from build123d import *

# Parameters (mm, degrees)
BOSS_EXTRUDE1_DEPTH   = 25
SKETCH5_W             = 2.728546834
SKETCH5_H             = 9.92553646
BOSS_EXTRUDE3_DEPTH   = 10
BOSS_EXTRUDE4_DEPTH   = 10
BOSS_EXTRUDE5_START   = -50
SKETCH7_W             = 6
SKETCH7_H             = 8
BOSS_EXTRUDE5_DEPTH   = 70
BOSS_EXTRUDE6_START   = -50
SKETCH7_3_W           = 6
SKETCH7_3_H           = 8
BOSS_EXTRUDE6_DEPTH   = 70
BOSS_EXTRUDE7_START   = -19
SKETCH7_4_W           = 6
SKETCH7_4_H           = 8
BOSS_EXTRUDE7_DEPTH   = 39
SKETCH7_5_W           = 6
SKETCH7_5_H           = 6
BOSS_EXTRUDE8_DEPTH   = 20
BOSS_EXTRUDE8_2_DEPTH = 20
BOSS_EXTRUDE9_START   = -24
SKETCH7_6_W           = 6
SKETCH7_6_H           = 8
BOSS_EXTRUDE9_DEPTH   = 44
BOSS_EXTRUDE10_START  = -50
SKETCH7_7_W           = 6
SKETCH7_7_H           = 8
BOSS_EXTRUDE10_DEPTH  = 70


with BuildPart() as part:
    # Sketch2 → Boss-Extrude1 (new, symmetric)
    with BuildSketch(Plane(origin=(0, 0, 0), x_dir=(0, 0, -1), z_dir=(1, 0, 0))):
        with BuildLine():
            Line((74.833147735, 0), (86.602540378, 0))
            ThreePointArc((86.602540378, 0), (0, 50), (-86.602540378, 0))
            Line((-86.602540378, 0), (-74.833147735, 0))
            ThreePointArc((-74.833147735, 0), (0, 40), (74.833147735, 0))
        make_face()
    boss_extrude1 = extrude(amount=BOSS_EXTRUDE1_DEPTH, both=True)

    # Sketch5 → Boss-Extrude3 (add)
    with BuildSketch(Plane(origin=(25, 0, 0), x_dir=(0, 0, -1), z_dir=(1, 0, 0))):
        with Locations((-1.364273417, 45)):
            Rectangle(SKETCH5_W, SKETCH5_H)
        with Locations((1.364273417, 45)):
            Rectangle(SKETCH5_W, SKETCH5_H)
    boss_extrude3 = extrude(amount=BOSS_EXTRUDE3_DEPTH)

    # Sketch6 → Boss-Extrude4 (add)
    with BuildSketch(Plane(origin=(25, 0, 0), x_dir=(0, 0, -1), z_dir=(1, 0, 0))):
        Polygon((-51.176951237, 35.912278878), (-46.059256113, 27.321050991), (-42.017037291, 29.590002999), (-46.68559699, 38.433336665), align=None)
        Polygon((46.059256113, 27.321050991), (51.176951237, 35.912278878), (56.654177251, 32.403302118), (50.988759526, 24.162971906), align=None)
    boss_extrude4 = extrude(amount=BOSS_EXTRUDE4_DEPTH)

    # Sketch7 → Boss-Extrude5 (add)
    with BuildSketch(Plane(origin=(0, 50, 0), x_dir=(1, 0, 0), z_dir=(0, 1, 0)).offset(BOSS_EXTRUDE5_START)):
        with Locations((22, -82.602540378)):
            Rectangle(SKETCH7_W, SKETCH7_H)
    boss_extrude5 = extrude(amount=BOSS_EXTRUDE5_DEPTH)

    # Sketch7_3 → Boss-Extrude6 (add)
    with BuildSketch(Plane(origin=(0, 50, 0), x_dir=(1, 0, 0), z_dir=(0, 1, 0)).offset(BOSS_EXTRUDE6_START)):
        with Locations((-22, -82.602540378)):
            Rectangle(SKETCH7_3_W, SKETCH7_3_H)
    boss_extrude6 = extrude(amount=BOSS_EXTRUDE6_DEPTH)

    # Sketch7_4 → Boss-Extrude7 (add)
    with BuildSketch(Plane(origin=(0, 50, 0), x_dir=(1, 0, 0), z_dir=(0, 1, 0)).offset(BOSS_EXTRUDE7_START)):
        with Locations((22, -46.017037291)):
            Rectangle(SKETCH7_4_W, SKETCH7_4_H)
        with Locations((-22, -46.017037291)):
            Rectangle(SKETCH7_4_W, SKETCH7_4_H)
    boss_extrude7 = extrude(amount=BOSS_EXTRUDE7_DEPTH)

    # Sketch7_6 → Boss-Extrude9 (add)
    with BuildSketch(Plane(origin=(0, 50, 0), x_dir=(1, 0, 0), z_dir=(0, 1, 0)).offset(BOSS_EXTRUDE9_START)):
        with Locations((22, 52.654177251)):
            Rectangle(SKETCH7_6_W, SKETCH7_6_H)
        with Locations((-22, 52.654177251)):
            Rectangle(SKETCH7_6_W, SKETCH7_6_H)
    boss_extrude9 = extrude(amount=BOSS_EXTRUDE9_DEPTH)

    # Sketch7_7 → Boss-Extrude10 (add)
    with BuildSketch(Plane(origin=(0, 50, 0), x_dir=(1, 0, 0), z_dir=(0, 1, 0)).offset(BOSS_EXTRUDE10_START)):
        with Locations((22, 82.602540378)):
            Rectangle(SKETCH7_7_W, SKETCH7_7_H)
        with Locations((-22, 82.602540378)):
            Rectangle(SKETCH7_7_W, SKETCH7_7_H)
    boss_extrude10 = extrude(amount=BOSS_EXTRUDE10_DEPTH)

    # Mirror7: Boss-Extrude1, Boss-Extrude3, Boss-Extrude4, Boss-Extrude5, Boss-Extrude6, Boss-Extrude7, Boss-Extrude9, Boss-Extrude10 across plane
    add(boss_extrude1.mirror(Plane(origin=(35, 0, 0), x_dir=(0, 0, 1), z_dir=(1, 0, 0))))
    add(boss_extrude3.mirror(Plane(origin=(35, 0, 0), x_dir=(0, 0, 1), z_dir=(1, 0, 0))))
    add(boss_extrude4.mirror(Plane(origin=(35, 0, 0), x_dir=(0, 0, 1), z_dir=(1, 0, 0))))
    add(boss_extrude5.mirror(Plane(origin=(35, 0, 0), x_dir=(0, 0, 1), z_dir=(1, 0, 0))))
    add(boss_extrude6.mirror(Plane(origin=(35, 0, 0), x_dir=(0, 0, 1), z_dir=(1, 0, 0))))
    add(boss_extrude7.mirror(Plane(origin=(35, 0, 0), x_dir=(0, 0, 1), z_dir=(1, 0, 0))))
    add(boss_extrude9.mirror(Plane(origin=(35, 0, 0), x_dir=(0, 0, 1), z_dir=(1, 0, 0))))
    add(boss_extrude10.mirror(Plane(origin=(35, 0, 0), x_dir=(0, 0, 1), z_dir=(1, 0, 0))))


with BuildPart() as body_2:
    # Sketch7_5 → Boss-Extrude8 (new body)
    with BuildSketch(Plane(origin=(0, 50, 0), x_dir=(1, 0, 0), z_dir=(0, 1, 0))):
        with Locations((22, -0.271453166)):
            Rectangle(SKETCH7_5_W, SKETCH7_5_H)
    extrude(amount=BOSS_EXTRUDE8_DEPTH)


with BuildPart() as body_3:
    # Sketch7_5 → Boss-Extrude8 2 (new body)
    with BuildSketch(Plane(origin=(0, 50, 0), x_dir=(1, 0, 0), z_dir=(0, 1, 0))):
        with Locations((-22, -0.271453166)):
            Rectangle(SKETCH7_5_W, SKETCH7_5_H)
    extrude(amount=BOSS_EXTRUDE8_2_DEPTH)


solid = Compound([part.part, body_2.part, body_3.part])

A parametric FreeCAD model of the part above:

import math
import FreeCAD as App
import Part
import Sketcher
Q = App.Units.Quantity


def add_polygon(sketch, points):
    """Adds a closed chain of lines whose ends are joined by coincident constraints."""
    first, n = sketch.GeometryCount, len(points)
    for a, b in zip(points, points[1:] + points[:1]):
        sketch.addGeometry(Part.LineSegment(App.Vector(*a, 0), App.Vector(*b, 0)), False)
    for i in range(n):
        sketch.addConstraint(Sketcher.Constraint("Coincident", first + i, 2, first + (i + 1) % n, 1))

doc = App.newDocument("Part")
body = doc.addObject("PartDesign::Body", "Body")

sketch1 = body.newObject("Sketcher::SketchObject", "Sketch")
sketch1.AttachmentSupport = (doc.getObject("YZ_Plane"), [""])
sketch1.MapMode = "FlatFace"
sketch1.addGeometry([
    Part.LineSegment(App.Vector(0, -75, 0), App.Vector(0, -87, 0)),
    Part.ArcOfCircle(Part.Circle(App.Vector(-50, 0, 0), App.Vector(0, 0, 1), 100), math.radians(-60), math.radians(60)),
    Part.LineSegment(App.Vector(0, 87, 0), App.Vector(0, 75, 0)),
    Part.ArcOfCircle(Part.Circle(App.Vector(-50, 0, 0), App.Vector(0, 0, 1), 90), math.radians(-56), math.radians(56)),
], False)
sketch1.addConstraint([
    Sketcher.Constraint("Coincident", 0, 2, 1, 1),
    Sketcher.Constraint("Coincident", 1, 2, 2, 1),
    Sketcher.Constraint("Coincident", 2, 2, 3, 2),
    Sketcher.Constraint("Coincident", 3, 1, 0, 1),
    Sketcher.Constraint("Vertical", 0),
    Sketcher.Constraint("Vertical", 2),
    Sketcher.Constraint("Coincident", 3, 3, 1, 3),
    Sketcher.Constraint("Symmetric", 0, 2, 1, 2, -1, 1),
    Sketcher.Constraint("PointOnObject", 1, 3, -1),
    Sketcher.Constraint("Radius", 1, Q("100 mm")),
    Sketcher.Constraint("Radius", 3, Q("90 mm")),
    Sketcher.Constraint("DistanceX", 1, 3, -1, 1, Q("50 mm")),
])
pad1 = body.newObject("PartDesign::Pad", "Pad")
pad1.Profile = sketch1
pad1.Length = 50
pad1.Midplane = True

sketch2 = body.newObject("Sketcher::SketchObject", "Sketch001")
sketch2.AttachmentSupport = (doc.getObject("YZ_Plane"), [""])
sketch2.MapMode = "FlatFace"
sketch2.AttachmentOffset = App.Placement(App.Vector(0, 0, 25), App.Rotation())
add_polygon(sketch2, [(50, 3), (40, 3), (40, -3), (50, -3)])
sketch2.addConstraint([
    Sketcher.Constraint("Horizontal", 0),
    Sketcher.Constraint("Vertical", 1),
    Sketcher.Constraint("Horizontal", 2),
    Sketcher.Constraint("Vertical", 3),
    Sketcher.Constraint("DistanceX", 0, 2, 0, 1, Q("9.925536 mm")),
    Sketcher.Constraint("DistanceY", 1, 2, 1, 1, Q("5.457094 mm")),
    Sketcher.Constraint("DistanceX", -1, 1, 0, 2, Q("40.037232 mm")),
    Sketcher.Constraint("DistanceY", -1, 1, 0, 2, Q("2.728547 mm")),
])
pad2 = body.newObject("PartDesign::Pad", "Pad001")
pad2.Profile = sketch2
pad2.Length = 10

sketch3 = body.newObject("Sketcher::SketchObject", "Sketch002")
sketch3.AttachmentSupport = (doc.getObject("YZ_Plane"), [""])
sketch3.MapMode = "FlatFace"
sketch3.AttachmentOffset = App.Placement(App.Vector(0, 0, 25), App.Rotation())
add_polygon(sketch3, [(35.9, 51.2), (27.3, 46.1), (29.6, 42), (38.4, 46.7)])
add_polygon(sketch3, [(35.9, -51.2), (27.3, -46.1), (24.2, -51), (32.4, -56.7)])
sketch3.addConstraint([
    Sketcher.Constraint("Symmetric", 0, 2, 4, 2, -1),
    Sketcher.Constraint("Symmetric", 3, 2, 7, 2, -1),
    Sketcher.Constraint("Parallel", 1, 3),
    Sketcher.Constraint("Parallel", 5, 7),
    Sketcher.Constraint("Equal", 0, 2),
    Sketcher.Constraint("Equal", 4, 6),
    Sketcher.Constraint("Distance", 0, Q("10 mm")),
    Sketcher.Constraint("DistanceX", 1, 2, 6, 2, Q("2.813299 mm")),
    Sketcher.Constraint("Distance", 1, Q("4.63548 mm")),
    Sketcher.Constraint("Distance", 7, Q("6.504838 mm")),
    Sketcher.Constraint("DistanceX", -1, 1, 0, 2, Q("27.321051 mm")),
    Sketcher.Constraint("DistanceX", -1, 1, 3, 2, Q("35.912279 mm")),
    Sketcher.Constraint("DistanceY", -1, 1, 3, 2, Q("51.176951 mm")),
    Sketcher.Constraint("DistanceX", -1, 1, 5, 2, Q("24.162972 mm")),
])
pad3 = body.newObject("PartDesign::Pad", "Pad002")
pad3.Profile = sketch3
pad3.Length = 10

sketch4 = body.newObject("Sketcher::SketchObject", "Sketch003")
sketch4.AttachmentSupport = (doc.getObject("XZ_Plane"), [""])
sketch4.MapMode = "FlatFace"
add_polygon(sketch4, [(19, 79), (19, 87), (25, 87), (25, 79)])
sketch4.addConstraint([
    Sketcher.Constraint("Vertical", 0),
    Sketcher.Constraint("Horizontal", 1),
    Sketcher.Constraint("Vertical", 2),
    Sketcher.Constraint("Horizontal", 3),
    Sketcher.Constraint("DistanceX", 1, 1, 1, 2, Q("6 mm")),
    Sketcher.Constraint("DistanceY", 0, 1, 0, 2, Q("8 mm")),
    Sketcher.Constraint("DistanceX", -1, 1, 0, 2, Q("19 mm")),
    Sketcher.Constraint("DistanceY", -1, 1, 0, 2, Q("86.60254 mm")),
])
pad4 = body.newObject("PartDesign::Pad", "Pad003")
pad4.Profile = sketch4
pad4.Length = 70
pad4.Reversed = True

sketch5 = body.newObject("Sketcher::SketchObject", "Sketch004")
sketch5.AttachmentSupport = (doc.getObject("XZ_Plane"), [""])
sketch5.MapMode = "FlatFace"
add_polygon(sketch5, [(-25, 79), (-25, 87), (-19, 87), (-19, 79)])
sketch5.addConstraint([
    Sketcher.Constraint("Vertical", 0),
    Sketcher.Constraint("Horizontal", 1),
    Sketcher.Constraint("Vertical", 2),
    Sketcher.Constraint("Horizontal", 3),
    Sketcher.Constraint("DistanceX", 1, 1, 1, 2, Q("6 mm")),
    Sketcher.Constraint("DistanceY", 0, 1, 0, 2, Q("8 mm")),
    Sketcher.Constraint("DistanceX", 0, 2, -1, 1, Q("25 mm")),
    Sketcher.Constraint("DistanceY", -1, 1, 0, 2, Q("86.60254 mm")),
])
pad5 = body.newObject("PartDesign::Pad", "Pad004")
pad5.Profile = sketch5
pad5.Length = 70
pad5.Reversed = True

sketch6 = body.newObject("Sketcher::SketchObject", "Sketch005")
sketch6.AttachmentSupport = (doc.getObject("XZ_Plane"), [""])
sketch6.MapMode = "FlatFace"
sketch6.AttachmentOffset = App.Placement(App.Vector(0, 0, -31), App.Rotation())
add_polygon(sketch6, [(19, 42), (19, 50), (25, 50), (25, 42)])
add_polygon(sketch6, [(-25, 42), (-25, 50), (-19, 50), (-19, 42)])
sketch6.addConstraint([
    Sketcher.Constraint("Vertical", 0),
    Sketcher.Constraint("Horizontal", 1),
    Sketcher.Constraint("Vertical", 2),
    Sketcher.Constraint("Horizontal", 3),
    Sketcher.Constraint("Vertical", 4),
    Sketcher.Constraint("Horizontal", 5),
    Sketcher.Constraint("Vertical", 6),
    Sketcher.Constraint("Horizontal", 7),
    Sketcher.Constraint("Symmetric", 1, 2, 4, 2, -2),
    Sketcher.Constraint("Symmetric", 3, 2, 6, 2, -2),
    Sketcher.Constraint("DistanceX", 1, 1, 1, 2, Q("6 mm")),
    Sketcher.Constraint("DistanceY", 0, 1, 0, 2, Q("8 mm")),
    Sketcher.Constraint("DistanceX", -1, 1, 0, 2, Q("19 mm")),
    Sketcher.Constraint("DistanceY", -1, 1, 0, 2, Q("50.017037 mm")),
])
pad6 = body.newObject("PartDesign::Pad", "Pad005")
pad6.Profile = sketch6
pad6.Length = 39
pad6.Reversed = True

sketch7 = body.newObject("Sketcher::SketchObject", "Sketch006")
sketch7.AttachmentSupport = (doc.getObject("XZ_Plane"), [""])
sketch7.MapMode = "FlatFace"
sketch7.AttachmentOffset = App.Placement(App.Vector(0, 0, -26), App.Rotation())
add_polygon(sketch7, [(19, -57), (19, -49), (25, -49), (25, -57)])
add_polygon(sketch7, [(-25, -57), (-25, -49), (-19, -49), (-19, -57)])
sketch7.addConstraint([
    Sketcher.Constraint("Vertical", 0),
    Sketcher.Constraint("Horizontal", 1),
    Sketcher.Constraint("Vertical", 2),
    Sketcher.Constraint("Horizontal", 3),
    Sketcher.Constraint("Vertical", 4),
    Sketcher.Constraint("Horizontal", 5),
    Sketcher.Constraint("Vertical", 6),
    Sketcher.Constraint("Horizontal", 7),
    Sketcher.Constraint("Symmetric", 1, 2, 4, 2, -2),
    Sketcher.Constraint("Symmetric", 3, 2, 6, 2, -2),
    Sketcher.Constraint("DistanceX", 1, 1, 1, 2, Q("6 mm")),
    Sketcher.Constraint("DistanceY", 0, 1, 0, 2, Q("8 mm")),
    Sketcher.Constraint("DistanceX", -1, 1, 0, 2, Q("19 mm")),
    Sketcher.Constraint("DistanceY", 0, 2, -1, 1, Q("48.654177 mm")),
])
pad7 = body.newObject("PartDesign::Pad", "Pad006")
pad7.Profile = sketch7
pad7.Length = 44
pad7.Reversed = True

sketch8 = body.newObject("Sketcher::SketchObject", "Sketch007")
sketch8.AttachmentSupport = (doc.getObject("XZ_Plane"), [""])
sketch8.MapMode = "FlatFace"
add_polygon(sketch8, [(19, -87), (19, -79), (25, -79), (25, -87)])
add_polygon(sketch8, [(-25, -87), (-25, -79), (-19, -79), (-19, -87)])
sketch8.addConstraint([
    Sketcher.Constraint("Vertical", 0),
    Sketcher.Constraint("Horizontal", 1),
    Sketcher.Constraint("Vertical", 2),
    Sketcher.Constraint("Horizontal", 3),
    Sketcher.Constraint("Vertical", 4),
    Sketcher.Constraint("Horizontal", 5),
    Sketcher.Constraint("Vertical", 6),
    Sketcher.Constraint("Horizontal", 7),
    Sketcher.Constraint("Symmetric", 1, 2, 4, 2, -2),
    Sketcher.Constraint("Symmetric", 3, 2, 6, 2, -2),
    Sketcher.Constraint("DistanceX", 1, 1, 1, 2, Q("6 mm")),
    Sketcher.Constraint("DistanceY", 0, 1, 0, 2, Q("8 mm")),
    Sketcher.Constraint("DistanceX", -1, 1, 0, 2, Q("19 mm")),
    Sketcher.Constraint("DistanceY", 0, 2, -1, 1, Q("78.60254 mm")),
])
pad8 = body.newObject("PartDesign::Pad", "Pad007")
pad8.Profile = sketch8
pad8.Length = 70
pad8.Reversed = True
doc.recompute()

datumplane = body.newObject("PartDesign::Plane", "DatumPlane")
datumplane.AttachmentSupport = (doc.getObject("YZ_Plane"), [""])
datumplane.MapMode = "FlatFace"
datumplane.AttachmentOffset = App.Placement(App.Vector(0, 0, 35), App.Rotation())
mirrored = body.newObject("PartDesign::Mirrored", "Mirrored")
mirrored.Originals = [pad1, pad2, pad3, pad4, pad5, pad6, pad7, pad8]
mirrored.MirrorPlane = (datumplane, [""])
body.Tip = mirrored
body2 = doc.addObject("PartDesign::Body", "Body001")

sketch9 = body2.newObject("Sketcher::SketchObject", "Sketch008")
sketch9.AttachmentSupport = (doc.getObject("XZ_Plane001"), [""])
sketch9.MapMode = "FlatFace"
sketch9.AttachmentOffset = App.Placement(App.Vector(0, 0, -50), App.Rotation())
add_polygon(sketch9, [(19, -3), (19, 3), (25, 3), (25, -3)])
sketch9.addConstraint([
    Sketcher.Constraint("Vertical", 0),
    Sketcher.Constraint("Horizontal", 1),
    Sketcher.Constraint("Vertical", 2),
    Sketcher.Constraint("Horizontal", 3),
    Sketcher.Constraint("Equal", 3, 0),
    Sketcher.Constraint("DistanceX", 1, 1, 1, 2, Q("6 mm")),
    Sketcher.Constraint("DistanceX", -1, 1, 0, 2, Q("19 mm")),
    Sketcher.Constraint("DistanceY", -1, 1, 0, 2, Q("3.271453 mm")),
])
pad9 = body2.newObject("PartDesign::Pad", "Pad008")
pad9.Profile = sketch9
pad9.Length = 20
pad9.Reversed = True
body3 = doc.addObject("PartDesign::Body", "Body002")

sketch10 = body3.newObject("Sketcher::SketchObject", "Sketch009")
sketch10.AttachmentSupport = (doc.getObject("XZ_Plane002"), [""])
sketch10.MapMode = "FlatFace"
sketch10.AttachmentOffset = App.Placement(App.Vector(0, 0, -50), App.Rotation())
add_polygon(sketch10, [(-25, -3), (-25, 3), (-19, 3), (-19, -3)])
sketch10.addConstraint([
    Sketcher.Constraint("Vertical", 0),
    Sketcher.Constraint("Horizontal", 1),
    Sketcher.Constraint("Vertical", 2),
    Sketcher.Constraint("Horizontal", 3),
    Sketcher.Constraint("Equal", 3, 0),
    Sketcher.Constraint("DistanceX", 1, 1, 1, 2, Q("6 mm")),
    Sketcher.Constraint("DistanceX", 0, 2, -1, 1, Q("25 mm")),
    Sketcher.Constraint("DistanceY", -1, 1, 0, 2, Q("3.271453 mm")),
])
pad10 = body3.newObject("PartDesign::Pad", "Pad009")
pad10.Profile = sketch10
pad10.Length = 20
pad10.Reversed = True

doc.recompute()
